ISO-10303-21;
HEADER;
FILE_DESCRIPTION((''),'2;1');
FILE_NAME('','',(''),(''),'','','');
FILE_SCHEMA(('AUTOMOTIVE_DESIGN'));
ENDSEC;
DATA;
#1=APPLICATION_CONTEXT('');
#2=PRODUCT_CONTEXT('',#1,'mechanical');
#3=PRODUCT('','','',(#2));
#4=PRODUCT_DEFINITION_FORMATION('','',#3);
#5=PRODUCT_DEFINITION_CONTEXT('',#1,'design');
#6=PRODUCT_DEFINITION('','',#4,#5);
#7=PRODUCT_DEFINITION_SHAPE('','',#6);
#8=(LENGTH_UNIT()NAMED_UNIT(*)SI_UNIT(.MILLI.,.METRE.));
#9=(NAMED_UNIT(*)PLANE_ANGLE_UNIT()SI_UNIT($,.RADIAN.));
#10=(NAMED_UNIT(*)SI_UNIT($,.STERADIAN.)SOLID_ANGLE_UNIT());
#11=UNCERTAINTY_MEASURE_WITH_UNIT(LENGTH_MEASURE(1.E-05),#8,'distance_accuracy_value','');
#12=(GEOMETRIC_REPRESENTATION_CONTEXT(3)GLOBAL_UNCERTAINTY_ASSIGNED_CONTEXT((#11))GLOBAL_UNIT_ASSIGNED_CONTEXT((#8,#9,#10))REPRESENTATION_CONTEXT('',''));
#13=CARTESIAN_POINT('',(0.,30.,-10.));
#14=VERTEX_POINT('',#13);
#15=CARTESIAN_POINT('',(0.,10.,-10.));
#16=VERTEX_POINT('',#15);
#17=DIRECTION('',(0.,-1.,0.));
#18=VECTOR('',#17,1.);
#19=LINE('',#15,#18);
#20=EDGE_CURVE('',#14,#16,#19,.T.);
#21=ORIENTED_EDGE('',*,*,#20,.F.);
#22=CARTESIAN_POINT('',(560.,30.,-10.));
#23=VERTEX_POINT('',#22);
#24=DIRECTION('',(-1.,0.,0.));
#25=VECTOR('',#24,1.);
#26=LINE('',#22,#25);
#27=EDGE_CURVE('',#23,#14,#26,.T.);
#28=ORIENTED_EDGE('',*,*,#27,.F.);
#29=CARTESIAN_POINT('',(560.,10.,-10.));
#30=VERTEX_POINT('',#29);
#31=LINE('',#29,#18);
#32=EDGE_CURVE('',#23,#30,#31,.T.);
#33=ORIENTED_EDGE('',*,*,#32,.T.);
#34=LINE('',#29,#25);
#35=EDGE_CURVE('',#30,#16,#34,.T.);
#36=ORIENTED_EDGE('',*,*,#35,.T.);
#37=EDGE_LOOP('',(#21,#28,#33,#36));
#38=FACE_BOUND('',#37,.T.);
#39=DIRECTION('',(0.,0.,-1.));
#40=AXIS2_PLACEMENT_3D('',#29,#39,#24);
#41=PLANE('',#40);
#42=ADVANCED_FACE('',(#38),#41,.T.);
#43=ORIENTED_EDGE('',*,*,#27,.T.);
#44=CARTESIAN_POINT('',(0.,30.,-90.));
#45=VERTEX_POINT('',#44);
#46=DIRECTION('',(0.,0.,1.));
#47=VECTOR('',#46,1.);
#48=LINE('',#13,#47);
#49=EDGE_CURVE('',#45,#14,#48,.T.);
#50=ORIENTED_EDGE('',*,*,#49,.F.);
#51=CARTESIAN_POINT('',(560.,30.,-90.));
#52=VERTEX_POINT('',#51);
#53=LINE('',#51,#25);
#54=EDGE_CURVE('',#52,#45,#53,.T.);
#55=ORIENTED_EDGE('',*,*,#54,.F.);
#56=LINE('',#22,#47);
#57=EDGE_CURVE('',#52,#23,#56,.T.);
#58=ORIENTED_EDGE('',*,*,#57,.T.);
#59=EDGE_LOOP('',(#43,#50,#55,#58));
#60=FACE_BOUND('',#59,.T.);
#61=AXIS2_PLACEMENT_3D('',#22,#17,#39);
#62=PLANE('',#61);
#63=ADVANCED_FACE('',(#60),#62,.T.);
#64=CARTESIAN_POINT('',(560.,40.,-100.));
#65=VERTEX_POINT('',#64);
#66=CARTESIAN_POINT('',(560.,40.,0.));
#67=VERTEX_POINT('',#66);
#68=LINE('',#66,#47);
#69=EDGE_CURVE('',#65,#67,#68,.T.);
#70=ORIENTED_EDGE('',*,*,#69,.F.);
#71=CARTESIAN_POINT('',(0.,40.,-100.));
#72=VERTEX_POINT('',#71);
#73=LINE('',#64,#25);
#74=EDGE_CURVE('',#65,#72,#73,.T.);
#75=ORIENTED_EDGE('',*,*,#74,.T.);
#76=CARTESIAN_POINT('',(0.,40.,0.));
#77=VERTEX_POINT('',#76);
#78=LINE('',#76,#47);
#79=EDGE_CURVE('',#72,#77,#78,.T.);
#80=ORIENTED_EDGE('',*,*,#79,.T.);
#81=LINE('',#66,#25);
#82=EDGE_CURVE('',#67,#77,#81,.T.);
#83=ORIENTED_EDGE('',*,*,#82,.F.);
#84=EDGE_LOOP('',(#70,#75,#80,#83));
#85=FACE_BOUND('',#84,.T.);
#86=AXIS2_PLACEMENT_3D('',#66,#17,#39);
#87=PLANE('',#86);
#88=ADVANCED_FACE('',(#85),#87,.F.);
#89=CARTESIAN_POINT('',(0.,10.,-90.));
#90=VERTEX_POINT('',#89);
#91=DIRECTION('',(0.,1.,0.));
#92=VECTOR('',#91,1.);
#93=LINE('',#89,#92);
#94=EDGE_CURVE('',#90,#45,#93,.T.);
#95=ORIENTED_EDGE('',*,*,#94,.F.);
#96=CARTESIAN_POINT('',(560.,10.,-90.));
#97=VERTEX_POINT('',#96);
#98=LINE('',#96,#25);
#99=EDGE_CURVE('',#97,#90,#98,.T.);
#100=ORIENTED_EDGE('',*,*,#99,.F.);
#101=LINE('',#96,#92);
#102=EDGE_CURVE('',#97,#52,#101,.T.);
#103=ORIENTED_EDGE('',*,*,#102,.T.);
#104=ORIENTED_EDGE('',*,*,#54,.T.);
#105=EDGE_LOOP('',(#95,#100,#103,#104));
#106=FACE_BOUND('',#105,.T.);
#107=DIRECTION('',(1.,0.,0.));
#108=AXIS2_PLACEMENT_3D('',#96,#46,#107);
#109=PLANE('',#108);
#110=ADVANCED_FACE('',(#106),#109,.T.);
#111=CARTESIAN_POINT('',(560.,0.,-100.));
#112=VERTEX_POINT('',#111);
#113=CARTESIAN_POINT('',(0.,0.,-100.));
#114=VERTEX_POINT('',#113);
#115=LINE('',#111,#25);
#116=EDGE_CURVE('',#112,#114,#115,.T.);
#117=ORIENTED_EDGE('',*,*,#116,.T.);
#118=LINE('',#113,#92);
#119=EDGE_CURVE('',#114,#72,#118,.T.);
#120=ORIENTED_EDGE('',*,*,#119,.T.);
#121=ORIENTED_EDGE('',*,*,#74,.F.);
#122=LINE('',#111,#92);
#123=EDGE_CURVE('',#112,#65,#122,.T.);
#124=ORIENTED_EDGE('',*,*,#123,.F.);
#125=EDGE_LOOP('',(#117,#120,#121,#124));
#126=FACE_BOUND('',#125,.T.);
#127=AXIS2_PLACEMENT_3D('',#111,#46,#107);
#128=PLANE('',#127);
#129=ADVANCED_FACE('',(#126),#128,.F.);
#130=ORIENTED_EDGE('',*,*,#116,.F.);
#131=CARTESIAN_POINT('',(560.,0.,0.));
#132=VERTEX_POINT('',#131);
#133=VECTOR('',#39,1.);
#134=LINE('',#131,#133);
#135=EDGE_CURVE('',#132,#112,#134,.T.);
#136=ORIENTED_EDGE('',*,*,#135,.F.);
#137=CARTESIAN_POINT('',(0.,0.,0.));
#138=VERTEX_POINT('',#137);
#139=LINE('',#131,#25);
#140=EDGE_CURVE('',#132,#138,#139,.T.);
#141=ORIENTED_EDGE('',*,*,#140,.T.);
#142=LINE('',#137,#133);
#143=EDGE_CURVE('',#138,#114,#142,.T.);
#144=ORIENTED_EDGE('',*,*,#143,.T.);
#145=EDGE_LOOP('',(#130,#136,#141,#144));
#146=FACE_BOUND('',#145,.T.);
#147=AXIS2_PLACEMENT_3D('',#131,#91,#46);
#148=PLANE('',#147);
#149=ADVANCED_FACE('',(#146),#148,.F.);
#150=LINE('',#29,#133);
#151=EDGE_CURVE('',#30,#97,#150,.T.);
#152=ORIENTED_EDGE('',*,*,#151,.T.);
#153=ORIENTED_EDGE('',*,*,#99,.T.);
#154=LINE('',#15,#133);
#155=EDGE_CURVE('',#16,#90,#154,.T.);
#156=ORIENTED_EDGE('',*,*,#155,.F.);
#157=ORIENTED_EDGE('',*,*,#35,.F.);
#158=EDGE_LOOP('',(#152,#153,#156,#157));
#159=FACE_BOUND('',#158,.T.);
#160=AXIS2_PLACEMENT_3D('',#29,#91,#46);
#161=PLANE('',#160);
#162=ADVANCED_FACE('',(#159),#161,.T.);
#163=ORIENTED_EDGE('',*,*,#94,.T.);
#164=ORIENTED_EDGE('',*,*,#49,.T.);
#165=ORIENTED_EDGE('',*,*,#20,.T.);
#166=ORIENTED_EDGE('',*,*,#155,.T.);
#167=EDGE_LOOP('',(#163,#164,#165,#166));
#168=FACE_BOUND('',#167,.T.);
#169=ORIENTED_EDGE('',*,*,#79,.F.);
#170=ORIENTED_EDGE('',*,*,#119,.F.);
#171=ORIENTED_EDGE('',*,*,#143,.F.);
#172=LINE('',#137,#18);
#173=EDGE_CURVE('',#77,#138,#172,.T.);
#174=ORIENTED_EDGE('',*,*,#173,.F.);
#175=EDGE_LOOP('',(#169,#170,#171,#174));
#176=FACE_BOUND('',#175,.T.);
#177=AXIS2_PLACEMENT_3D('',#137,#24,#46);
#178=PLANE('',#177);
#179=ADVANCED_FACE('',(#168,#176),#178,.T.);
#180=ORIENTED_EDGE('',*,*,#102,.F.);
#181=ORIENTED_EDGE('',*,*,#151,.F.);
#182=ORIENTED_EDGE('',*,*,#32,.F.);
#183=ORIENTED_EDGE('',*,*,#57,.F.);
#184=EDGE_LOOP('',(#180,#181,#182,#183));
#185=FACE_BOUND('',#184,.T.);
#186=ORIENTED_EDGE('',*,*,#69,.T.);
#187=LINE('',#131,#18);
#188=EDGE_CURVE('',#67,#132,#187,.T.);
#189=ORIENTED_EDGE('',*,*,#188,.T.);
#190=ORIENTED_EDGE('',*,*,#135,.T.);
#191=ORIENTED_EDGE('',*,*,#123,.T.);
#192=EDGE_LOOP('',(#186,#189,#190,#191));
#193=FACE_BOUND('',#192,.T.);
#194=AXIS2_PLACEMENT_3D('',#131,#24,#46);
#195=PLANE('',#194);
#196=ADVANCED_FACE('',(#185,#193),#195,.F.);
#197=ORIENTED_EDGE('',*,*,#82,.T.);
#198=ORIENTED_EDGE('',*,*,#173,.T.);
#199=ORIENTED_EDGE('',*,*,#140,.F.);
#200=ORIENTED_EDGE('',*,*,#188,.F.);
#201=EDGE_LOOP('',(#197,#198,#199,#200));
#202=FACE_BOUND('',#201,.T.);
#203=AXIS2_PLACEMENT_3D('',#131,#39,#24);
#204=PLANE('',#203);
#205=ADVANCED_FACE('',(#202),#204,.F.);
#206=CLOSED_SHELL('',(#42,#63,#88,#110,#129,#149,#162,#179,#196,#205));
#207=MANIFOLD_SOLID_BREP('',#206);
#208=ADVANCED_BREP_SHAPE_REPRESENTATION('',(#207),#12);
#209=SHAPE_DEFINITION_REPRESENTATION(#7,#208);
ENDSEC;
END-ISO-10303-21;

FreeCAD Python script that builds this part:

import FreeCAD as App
import Part
import Sketcher


def add_polygon(sketch, points):
    """Adds a closed chain of lines whose ends are joined by coincident constraints."""
    first, n = sketch.GeometryCount, len(points)
    for a, b in zip(points, points[1:] + points[:1]):
        sketch.addGeometry(Part.LineSegment(App.Vector(*a, 0), App.Vector(*b, 0)), False)
    for i in range(n):
        sketch.addConstraint(Sketcher.Constraint("Coincident", first + i, 2, first + (i + 1) % n, 1))

doc = App.newDocument("Part")
body = doc.addObject("PartDesign::Body", "Body")

sketch1 = body.newObject("Sketcher::SketchObject", "Sketch")
sketch1.AttachmentSupport = (doc.getObject("YZ_Plane"), [""])
sketch1.MapMode = "FlatFace"
add_polygon(sketch1, [(40, 0), (0, 0), (0, -100), (40, -100)])
add_polygon(sketch1, [(10, -90), (10, -10), (30, -10), (30, -90)])
sketch1.addConstraint([
    Sketcher.Constraint("Horizontal", 0),
    Sketcher.Constraint("Vertical", 1),
    Sketcher.Constraint("Horizontal", 2),
    Sketcher.Constraint("Vertical", 3),
    Sketcher.Constraint("Vertical", 4),
    Sketcher.Constraint("Horizontal", 5),
    Sketcher.Constraint("Vertical", 6),
    Sketcher.Constraint("Horizontal", 7),
    Sketcher.Constraint("Coincident", 0, 2, -1, 1),
    Sketcher.Constraint("DistanceX", 0, 2, 0, 1, 40.0),
    Sketcher.Constraint("DistanceX", 5, 1, 5, 2, 20.0),
    Sketcher.Constraint("DistanceY", 1, 2, 1, 1, 100.0),
    Sketcher.Constraint("DistanceY", 4, 1, 4, 2, 80.0),
    Sketcher.Constraint("DistanceX", -1, 1, 4, 2, 10.0),
    Sketcher.Constraint("DistanceY", 4, 2, -1, 1, 10.0),
])
pad1 = body.newObject("PartDesign::Pad", "Pad")
pad1.Profile = sketch1
pad1.Length = 560

doc.recompute()
